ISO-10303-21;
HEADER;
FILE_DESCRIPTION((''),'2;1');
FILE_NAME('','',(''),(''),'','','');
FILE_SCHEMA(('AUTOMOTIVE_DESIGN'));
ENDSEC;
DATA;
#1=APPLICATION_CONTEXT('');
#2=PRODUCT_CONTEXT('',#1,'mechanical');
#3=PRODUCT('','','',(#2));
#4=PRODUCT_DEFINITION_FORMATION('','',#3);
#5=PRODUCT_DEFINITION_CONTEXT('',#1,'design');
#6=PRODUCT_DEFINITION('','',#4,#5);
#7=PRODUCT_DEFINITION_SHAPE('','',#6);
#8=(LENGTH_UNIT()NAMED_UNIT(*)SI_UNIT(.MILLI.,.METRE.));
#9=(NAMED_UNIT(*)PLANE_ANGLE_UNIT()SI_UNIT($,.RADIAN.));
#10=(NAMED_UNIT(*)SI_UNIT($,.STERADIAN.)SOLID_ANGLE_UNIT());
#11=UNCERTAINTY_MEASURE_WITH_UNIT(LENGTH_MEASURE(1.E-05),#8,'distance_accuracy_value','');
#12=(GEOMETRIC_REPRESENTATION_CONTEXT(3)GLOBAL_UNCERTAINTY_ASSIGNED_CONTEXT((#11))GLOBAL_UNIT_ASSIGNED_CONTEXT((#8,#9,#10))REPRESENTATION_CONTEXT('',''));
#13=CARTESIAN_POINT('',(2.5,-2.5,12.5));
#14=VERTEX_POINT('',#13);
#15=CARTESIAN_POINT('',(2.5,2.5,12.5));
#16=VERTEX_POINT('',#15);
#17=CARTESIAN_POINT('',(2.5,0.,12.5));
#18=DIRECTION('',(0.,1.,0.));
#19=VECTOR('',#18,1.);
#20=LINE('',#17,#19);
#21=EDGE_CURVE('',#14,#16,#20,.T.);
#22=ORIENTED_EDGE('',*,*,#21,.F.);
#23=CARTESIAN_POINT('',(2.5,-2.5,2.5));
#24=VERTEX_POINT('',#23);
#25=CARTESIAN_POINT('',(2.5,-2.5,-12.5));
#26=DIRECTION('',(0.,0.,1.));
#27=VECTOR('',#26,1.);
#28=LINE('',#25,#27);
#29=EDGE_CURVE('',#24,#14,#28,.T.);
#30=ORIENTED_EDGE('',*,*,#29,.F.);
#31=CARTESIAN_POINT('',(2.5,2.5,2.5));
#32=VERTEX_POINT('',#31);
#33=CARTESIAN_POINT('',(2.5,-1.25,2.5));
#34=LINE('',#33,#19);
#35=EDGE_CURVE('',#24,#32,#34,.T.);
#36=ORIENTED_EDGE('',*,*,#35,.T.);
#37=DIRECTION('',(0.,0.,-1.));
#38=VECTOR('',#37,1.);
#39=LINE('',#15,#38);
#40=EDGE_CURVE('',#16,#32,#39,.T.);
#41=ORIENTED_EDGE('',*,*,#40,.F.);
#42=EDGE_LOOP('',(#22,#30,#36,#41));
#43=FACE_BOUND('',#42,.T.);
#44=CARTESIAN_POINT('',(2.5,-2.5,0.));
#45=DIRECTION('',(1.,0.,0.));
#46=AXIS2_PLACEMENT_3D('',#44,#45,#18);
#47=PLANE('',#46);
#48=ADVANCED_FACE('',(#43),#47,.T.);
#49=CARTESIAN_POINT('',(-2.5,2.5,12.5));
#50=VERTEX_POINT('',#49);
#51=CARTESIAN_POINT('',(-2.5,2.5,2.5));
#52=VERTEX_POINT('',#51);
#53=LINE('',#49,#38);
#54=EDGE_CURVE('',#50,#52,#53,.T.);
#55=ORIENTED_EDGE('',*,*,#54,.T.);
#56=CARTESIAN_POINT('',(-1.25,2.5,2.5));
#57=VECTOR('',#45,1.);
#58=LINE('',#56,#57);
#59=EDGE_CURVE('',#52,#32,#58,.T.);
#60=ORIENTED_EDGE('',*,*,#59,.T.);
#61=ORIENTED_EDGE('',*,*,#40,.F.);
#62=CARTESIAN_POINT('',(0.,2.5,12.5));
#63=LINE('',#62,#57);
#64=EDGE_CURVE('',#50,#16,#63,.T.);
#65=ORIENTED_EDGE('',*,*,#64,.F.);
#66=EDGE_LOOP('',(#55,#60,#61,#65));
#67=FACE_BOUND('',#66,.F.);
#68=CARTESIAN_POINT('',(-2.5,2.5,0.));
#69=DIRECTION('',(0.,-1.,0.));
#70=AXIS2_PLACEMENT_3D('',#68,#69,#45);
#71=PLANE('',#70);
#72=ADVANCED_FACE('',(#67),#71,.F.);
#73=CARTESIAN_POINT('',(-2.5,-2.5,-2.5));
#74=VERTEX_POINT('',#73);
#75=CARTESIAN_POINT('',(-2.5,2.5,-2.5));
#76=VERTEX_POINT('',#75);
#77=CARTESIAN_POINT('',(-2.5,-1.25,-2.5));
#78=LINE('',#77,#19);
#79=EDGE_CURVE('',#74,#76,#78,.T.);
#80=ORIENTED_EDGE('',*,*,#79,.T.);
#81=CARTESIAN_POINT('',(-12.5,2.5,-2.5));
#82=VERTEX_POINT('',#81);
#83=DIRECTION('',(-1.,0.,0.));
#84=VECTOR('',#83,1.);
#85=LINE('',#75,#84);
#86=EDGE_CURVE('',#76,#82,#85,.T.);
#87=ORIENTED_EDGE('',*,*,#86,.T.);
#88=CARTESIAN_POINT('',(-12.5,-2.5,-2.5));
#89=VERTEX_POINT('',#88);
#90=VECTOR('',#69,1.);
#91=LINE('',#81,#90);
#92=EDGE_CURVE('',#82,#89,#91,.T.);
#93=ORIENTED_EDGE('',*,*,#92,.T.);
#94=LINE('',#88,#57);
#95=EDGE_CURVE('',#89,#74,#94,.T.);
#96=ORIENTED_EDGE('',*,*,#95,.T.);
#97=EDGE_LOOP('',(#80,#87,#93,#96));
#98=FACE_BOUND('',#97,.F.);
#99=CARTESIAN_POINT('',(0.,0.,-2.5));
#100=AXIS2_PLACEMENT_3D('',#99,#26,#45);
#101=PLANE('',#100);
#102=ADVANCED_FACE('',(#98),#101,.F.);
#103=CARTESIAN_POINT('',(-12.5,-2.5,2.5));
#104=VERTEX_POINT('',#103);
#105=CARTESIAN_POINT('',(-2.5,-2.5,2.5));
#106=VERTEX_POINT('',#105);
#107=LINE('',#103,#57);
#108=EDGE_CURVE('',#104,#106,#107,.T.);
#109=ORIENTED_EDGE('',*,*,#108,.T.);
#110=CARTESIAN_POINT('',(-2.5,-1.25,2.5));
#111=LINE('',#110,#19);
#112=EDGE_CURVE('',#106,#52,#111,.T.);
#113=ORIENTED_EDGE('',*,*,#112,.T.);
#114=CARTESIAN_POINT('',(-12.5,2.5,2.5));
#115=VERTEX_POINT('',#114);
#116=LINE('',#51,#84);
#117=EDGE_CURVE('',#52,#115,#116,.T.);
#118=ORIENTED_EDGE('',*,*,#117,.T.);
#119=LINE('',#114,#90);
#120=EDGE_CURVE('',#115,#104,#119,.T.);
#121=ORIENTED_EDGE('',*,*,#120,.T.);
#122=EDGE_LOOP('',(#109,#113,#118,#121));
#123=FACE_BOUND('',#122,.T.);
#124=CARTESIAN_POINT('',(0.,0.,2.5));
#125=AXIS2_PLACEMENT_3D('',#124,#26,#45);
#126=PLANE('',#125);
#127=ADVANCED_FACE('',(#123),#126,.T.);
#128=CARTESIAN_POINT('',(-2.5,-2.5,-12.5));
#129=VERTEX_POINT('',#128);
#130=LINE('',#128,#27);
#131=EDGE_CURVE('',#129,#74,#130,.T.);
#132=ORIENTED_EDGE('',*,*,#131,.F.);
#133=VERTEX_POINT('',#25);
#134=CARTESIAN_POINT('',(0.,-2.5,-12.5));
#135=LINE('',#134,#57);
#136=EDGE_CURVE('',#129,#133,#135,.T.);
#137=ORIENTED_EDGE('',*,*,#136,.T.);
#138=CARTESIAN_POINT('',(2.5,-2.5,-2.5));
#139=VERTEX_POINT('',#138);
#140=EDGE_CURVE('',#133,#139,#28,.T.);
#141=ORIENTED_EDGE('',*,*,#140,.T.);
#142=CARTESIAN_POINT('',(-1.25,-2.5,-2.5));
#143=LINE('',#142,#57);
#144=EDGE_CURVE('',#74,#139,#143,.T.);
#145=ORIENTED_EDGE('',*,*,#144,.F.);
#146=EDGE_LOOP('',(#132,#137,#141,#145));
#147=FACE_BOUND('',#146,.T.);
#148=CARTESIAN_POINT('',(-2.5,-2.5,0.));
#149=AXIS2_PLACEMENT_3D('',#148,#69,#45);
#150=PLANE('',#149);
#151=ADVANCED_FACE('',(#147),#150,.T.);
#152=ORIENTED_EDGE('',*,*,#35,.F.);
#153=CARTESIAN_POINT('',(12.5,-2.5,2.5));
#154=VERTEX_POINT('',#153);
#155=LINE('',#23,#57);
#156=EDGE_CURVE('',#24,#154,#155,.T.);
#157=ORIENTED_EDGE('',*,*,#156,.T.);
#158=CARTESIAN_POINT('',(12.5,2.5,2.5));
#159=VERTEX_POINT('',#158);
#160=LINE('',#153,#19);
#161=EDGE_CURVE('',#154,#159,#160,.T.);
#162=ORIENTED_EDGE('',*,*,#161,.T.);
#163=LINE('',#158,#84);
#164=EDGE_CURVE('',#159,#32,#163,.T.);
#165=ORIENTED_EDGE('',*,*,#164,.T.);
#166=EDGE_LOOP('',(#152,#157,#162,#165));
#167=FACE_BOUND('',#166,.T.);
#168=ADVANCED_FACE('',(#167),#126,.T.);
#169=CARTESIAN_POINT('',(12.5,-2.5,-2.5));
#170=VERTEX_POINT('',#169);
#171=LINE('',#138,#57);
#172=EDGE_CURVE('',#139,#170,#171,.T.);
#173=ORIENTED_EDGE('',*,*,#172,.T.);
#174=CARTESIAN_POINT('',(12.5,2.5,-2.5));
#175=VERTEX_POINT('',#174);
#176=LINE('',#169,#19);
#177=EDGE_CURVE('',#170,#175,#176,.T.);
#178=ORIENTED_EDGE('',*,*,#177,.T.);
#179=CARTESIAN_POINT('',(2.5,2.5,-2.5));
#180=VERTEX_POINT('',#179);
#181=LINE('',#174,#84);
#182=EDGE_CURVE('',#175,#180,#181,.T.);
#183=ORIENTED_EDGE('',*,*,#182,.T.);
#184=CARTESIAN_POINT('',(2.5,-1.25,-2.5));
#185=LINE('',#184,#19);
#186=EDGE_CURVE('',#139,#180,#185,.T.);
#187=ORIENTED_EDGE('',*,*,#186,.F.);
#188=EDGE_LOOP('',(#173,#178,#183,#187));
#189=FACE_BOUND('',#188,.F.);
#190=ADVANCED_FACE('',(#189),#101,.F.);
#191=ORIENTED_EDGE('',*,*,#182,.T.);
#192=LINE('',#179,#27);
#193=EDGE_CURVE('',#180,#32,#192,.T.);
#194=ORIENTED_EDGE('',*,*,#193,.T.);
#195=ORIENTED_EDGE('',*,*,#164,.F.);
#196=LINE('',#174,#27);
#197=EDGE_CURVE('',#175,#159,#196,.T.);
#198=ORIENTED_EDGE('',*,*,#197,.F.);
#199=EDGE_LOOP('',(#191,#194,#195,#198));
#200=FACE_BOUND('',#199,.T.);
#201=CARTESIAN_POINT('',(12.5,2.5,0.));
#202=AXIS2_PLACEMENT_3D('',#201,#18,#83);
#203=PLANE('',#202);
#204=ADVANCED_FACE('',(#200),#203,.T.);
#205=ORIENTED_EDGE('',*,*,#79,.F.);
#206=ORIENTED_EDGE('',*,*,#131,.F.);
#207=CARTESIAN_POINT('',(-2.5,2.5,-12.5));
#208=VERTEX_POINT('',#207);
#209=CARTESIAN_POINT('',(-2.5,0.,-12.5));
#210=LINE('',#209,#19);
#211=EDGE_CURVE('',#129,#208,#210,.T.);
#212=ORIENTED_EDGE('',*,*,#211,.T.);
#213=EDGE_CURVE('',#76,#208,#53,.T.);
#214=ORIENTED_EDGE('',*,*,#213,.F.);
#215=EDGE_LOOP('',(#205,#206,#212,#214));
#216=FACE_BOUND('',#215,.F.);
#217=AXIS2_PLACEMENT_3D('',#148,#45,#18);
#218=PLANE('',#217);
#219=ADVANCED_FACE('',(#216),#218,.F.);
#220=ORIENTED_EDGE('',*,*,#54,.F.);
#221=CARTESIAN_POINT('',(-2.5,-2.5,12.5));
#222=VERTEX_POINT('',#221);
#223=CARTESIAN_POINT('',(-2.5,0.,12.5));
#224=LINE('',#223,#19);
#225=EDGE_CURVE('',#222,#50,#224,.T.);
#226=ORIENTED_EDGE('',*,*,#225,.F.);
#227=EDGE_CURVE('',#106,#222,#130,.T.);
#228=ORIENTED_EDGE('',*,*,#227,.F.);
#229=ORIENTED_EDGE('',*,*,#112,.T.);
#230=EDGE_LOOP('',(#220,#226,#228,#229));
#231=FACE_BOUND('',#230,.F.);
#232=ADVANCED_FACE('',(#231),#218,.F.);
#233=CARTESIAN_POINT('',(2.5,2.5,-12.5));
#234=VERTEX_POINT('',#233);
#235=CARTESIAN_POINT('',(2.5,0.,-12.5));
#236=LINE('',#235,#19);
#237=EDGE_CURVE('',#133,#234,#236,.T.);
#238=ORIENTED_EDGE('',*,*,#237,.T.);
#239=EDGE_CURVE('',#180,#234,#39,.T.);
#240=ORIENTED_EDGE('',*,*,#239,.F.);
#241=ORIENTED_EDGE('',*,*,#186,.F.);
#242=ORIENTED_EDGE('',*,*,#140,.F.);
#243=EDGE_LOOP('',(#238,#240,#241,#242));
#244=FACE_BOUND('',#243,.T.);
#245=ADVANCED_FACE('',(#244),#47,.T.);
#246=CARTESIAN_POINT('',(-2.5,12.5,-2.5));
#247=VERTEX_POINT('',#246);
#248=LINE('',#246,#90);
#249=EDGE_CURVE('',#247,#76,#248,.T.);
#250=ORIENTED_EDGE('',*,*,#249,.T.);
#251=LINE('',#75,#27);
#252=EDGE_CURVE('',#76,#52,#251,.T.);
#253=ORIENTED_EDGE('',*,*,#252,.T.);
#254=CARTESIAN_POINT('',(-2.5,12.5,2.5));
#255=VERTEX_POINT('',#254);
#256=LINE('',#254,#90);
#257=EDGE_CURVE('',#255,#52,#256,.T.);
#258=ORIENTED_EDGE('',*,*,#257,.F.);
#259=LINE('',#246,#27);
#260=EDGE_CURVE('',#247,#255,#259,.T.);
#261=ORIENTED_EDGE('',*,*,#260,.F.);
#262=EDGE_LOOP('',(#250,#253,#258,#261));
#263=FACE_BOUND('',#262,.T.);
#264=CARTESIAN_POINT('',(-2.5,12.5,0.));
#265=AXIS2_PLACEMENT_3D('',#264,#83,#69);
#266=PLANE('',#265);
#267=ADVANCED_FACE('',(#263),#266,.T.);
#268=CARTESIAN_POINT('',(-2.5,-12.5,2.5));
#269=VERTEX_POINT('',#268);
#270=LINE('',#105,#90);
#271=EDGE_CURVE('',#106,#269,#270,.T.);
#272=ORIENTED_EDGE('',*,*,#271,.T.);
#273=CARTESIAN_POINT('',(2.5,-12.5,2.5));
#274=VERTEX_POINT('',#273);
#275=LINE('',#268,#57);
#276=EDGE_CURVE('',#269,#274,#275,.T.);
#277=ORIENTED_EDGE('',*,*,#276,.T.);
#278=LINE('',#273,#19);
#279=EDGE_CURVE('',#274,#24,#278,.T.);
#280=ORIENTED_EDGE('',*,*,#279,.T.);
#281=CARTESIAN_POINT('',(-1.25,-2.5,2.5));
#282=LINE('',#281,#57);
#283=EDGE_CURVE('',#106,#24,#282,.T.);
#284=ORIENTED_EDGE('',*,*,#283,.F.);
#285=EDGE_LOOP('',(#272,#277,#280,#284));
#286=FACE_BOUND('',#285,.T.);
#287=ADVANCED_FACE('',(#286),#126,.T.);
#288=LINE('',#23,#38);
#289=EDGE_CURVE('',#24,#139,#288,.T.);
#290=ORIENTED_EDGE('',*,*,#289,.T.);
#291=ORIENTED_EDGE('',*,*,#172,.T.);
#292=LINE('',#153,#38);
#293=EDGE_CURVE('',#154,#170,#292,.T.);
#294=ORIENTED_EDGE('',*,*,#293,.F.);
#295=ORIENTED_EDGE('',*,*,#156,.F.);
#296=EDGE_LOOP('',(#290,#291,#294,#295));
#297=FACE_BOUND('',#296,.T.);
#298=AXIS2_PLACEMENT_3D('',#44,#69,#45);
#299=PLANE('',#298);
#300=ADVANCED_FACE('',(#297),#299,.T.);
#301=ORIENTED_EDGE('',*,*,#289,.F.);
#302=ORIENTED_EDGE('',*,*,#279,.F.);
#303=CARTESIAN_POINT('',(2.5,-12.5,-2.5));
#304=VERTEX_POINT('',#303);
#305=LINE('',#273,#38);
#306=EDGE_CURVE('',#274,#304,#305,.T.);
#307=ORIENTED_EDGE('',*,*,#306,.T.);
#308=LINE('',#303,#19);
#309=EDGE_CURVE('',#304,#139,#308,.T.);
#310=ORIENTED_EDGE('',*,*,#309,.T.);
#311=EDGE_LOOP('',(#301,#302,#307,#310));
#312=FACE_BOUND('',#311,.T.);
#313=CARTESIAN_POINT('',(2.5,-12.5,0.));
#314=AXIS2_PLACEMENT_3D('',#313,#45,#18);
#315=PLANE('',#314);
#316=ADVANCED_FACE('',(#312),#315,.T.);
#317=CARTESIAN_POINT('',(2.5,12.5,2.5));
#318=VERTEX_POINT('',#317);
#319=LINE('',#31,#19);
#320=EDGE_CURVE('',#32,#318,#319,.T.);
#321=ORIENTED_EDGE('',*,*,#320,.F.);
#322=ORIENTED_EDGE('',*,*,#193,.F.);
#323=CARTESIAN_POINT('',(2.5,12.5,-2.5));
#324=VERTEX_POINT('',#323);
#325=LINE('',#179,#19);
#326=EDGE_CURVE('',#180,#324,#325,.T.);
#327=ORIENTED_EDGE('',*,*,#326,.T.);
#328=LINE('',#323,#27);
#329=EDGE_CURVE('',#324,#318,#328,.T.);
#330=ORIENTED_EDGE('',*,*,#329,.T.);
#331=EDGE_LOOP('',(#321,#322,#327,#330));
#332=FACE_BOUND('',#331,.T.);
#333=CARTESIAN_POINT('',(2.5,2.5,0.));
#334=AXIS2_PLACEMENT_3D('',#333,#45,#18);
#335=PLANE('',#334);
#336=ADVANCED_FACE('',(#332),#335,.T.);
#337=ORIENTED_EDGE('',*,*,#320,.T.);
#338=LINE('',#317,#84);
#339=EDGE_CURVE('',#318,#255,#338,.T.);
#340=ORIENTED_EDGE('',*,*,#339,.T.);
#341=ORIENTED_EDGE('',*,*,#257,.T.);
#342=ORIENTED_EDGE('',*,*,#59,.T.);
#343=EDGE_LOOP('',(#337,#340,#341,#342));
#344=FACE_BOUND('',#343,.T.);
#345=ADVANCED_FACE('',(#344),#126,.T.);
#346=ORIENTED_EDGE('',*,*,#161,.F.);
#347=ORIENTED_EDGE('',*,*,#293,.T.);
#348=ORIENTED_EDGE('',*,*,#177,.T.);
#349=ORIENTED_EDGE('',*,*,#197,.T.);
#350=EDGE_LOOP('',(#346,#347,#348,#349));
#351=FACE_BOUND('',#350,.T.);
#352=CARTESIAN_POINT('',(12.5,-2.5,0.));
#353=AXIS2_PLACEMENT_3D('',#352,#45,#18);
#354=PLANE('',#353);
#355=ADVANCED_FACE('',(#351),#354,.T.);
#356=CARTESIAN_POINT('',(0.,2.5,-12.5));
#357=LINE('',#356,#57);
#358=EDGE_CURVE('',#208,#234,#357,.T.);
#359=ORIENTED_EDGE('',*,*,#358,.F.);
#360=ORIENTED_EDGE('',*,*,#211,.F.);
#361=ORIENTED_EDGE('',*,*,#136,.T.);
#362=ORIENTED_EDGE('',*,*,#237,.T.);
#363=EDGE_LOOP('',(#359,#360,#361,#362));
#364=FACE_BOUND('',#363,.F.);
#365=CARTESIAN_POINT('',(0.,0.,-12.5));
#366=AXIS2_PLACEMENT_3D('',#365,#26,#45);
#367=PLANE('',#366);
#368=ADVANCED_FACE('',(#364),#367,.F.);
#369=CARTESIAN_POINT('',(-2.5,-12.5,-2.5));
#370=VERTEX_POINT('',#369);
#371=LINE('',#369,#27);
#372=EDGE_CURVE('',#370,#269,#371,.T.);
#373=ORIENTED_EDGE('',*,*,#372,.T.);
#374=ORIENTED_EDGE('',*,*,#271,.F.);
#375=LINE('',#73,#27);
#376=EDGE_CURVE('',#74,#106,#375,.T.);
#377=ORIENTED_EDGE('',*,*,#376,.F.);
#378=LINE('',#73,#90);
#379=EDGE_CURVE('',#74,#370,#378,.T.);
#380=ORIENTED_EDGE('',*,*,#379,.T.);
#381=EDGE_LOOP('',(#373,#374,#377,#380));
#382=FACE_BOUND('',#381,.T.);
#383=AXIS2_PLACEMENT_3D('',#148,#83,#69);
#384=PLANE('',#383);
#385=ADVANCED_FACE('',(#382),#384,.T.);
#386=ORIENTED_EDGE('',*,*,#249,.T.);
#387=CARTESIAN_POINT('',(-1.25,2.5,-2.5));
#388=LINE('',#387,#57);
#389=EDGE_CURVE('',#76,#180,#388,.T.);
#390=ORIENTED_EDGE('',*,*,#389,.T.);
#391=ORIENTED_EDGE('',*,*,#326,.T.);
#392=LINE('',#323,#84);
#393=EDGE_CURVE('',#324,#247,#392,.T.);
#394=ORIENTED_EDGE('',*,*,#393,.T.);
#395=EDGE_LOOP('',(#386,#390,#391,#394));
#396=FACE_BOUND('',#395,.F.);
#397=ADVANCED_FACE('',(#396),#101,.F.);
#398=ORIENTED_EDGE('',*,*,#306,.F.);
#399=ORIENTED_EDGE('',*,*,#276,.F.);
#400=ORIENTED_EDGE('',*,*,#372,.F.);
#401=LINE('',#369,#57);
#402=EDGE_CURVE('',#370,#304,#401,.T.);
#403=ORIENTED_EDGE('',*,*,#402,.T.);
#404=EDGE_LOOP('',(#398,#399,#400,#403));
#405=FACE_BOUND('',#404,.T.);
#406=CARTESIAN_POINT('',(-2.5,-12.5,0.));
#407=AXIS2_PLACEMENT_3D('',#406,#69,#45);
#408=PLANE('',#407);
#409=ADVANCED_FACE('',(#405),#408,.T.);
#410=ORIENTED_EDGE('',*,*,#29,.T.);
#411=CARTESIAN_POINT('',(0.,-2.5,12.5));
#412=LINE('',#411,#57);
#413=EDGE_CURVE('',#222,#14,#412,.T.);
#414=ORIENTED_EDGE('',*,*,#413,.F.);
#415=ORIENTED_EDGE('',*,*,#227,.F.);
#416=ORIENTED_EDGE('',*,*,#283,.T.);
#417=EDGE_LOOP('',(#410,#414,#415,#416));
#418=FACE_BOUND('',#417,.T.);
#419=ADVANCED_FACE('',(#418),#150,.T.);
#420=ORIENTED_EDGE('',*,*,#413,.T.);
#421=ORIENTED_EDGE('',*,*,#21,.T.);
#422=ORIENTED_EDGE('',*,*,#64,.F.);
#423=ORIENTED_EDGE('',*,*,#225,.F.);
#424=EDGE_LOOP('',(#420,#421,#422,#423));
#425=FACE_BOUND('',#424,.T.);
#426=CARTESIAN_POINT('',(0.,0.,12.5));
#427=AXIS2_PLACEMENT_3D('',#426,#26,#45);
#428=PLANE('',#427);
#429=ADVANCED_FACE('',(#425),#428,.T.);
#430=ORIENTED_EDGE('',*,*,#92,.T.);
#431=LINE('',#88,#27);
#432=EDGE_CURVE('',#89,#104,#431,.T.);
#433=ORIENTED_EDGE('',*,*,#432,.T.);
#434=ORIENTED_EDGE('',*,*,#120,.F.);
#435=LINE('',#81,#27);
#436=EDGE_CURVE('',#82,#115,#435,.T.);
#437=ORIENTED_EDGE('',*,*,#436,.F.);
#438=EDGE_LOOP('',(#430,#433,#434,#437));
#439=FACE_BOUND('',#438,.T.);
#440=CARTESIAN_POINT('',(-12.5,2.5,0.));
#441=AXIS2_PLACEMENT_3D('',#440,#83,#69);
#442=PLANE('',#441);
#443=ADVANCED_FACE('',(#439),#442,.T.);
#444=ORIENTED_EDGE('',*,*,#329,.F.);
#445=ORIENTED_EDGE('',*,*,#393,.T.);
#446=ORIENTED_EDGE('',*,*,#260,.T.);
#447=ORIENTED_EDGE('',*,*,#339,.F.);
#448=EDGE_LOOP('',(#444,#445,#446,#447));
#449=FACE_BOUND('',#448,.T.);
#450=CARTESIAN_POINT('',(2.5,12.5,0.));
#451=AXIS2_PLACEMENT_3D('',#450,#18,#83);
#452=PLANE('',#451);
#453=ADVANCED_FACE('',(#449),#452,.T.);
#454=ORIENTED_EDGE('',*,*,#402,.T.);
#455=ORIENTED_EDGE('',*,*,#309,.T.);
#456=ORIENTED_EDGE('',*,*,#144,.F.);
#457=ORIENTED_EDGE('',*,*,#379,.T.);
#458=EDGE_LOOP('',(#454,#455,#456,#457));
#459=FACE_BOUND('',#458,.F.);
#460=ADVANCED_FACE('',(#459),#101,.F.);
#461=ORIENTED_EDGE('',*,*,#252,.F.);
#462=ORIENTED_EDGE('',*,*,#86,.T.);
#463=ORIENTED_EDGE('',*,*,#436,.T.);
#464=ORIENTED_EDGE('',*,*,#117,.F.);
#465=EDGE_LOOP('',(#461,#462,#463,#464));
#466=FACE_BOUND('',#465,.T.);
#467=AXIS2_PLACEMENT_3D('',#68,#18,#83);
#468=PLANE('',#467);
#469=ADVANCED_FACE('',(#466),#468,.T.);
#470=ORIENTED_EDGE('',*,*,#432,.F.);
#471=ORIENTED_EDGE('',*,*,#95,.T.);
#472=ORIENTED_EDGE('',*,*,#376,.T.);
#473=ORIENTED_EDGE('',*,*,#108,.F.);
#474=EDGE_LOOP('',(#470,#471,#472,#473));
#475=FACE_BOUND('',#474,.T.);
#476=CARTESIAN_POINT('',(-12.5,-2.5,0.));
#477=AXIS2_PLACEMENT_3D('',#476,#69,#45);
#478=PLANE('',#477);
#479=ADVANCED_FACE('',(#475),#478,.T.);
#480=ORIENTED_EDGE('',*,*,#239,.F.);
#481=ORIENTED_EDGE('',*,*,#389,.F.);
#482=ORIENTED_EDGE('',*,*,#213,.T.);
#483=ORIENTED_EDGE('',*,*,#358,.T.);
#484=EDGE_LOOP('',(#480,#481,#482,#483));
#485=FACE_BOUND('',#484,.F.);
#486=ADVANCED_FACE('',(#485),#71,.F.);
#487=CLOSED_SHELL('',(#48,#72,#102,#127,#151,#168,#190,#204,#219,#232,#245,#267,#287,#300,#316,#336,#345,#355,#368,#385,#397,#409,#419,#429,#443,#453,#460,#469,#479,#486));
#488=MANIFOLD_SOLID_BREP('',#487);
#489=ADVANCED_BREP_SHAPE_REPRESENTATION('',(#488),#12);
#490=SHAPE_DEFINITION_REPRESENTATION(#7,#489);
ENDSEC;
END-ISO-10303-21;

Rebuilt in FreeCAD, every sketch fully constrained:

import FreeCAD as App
import Part
import Sketcher
from FreeCAD import Vector
Q = App.Units.Quantity


def add_polygon(sketch, points):
    """Adds a closed chain of lines whose ends are joined by coincident constraints."""
    first, n = sketch.GeometryCount, len(points)
    for a, b in zip(points, points[1:] + points[:1]):
        sketch.addGeometry(Part.LineSegment(App.Vector(*a, 0), App.Vector(*b, 0)), False)
    for i in range(n):
        sketch.addConstraint(Sketcher.Constraint("Coincident", first + i, 2, first + (i + 1) % n, 1))

doc = App.newDocument("Part")
body = doc.addObject("PartDesign::Body", "Body")

sketch1 = body.newObject("Sketcher::SketchObject", "Sketch")
sketch1.AttachmentSupport = (doc.getObject("XY_Plane"), [""])
sketch1.MapMode = "FlatFace"
add_polygon(sketch1, [(12, -2), (12, 2), (2, 2), (2, 12), (-2, 12), (-2, 2), (-12, 2), (-12, -2), (-2, -2), (-2, -12), (2, -12), (2, -2)])
sketch1.addConstraint([
    Sketcher.Constraint("Vertical", 0),
    Sketcher.Constraint("Horizontal", 1),
    Sketcher.Constraint("Vertical", 2),
    Sketcher.Constraint("Horizontal", 3),
    Sketcher.Constraint("Vertical", 4),
    Sketcher.Constraint("Horizontal", 5),
    Sketcher.Constraint("Vertical", 6),
    Sketcher.Constraint("Horizontal", 7),
    Sketcher.Constraint("Vertical", 8),
    Sketcher.Constraint("Horizontal", 9),
    Sketcher.Constraint("Vertical", 10),
    Sketcher.Constraint("Horizontal", 11),
    Sketcher.Constraint("Symmetric", 0, 2, 6, 2, -1, 1),
    Sketcher.Constraint("Symmetric", 2, 2, 8, 2, -1, 1),
    Sketcher.Constraint("Symmetric", 4, 2, 10, 2, -1, 1),
    Sketcher.Constraint("Symmetric", 1, 2, 4, 2, -2),
    Sketcher.Constraint("Equal", 9, 0),
    Sketcher.Constraint("Equal", 11, 2),
    Sketcher.Constraint("DistanceX", 1, 2, 1, 1, Q("10 mm")),
    Sketcher.Constraint("DistanceX", 3, 2, 3, 1, Q("5 mm")),
])
pad1 = body.newObject("PartDesign::Pad", "Pad")
pad1.Profile = sketch1
pad1.Length = 5
pad1.Midplane = True

sketch2 = body.newObject("Sketcher::SketchObject", "Sketch001")
sketch2.AttachmentSupport = (doc.getObject("XY_Plane"), [""])
sketch2.MapMode = "FlatFace"
add_polygon(sketch2, [(-2, 2), (-2, -2), (2, -2), (2, 2)])
sketch2.addConstraint([
    Sketcher.Constraint("Vertical", 0),
    Sketcher.Constraint("Horizontal", 1),
    Sketcher.Constraint("Vertical", 2),
    Sketcher.Constraint("Horizontal", 3),
    Sketcher.Constraint("Symmetric", 0, 2, 2, 2, -1, 1),
    Sketcher.Constraint("Equal", 3, 0),
    Sketcher.Constraint("DistanceX", 1, 1, 1, 2, Q("5 mm")),
])
pad2 = body.newObject("PartDesign::Pad", "Pad001")
pad2.Profile = sketch2
pad2.Length = 25
pad2.Midplane = True

doc.recompute()
